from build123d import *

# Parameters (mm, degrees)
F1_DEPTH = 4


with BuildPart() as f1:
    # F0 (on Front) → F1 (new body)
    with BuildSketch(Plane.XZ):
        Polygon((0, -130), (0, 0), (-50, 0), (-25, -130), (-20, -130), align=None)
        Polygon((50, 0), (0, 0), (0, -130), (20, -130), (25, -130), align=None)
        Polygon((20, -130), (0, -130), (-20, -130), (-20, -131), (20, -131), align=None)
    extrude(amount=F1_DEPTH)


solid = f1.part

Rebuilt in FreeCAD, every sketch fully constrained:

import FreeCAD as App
import Part
import Sketcher

doc = App.newDocument("Part")
body = doc.addObject("PartDesign::Body", "Body")

sketch1 = doc.addObject("Sketcher::SketchObject", "Sketch")
body.addObject(sketch1)
sketch1.AttachmentSupport = (doc.XZ_Plane, [""])
sketch1.MapMode = "FlatFace"
sketch1.addGeometry([
    Part.LineSegment(App.Vector(-50, 0, 0), App.Vector(-25, -130, 0)),
    Part.LineSegment(App.Vector(-25, -130, 0), App.Vector(-20, -130, 0)),
    Part.LineSegment(App.Vector(-20, -130, 0), App.Vector(-20, -131, 0)),
    Part.LineSegment(App.Vector(-20, -131, 0), App.Vector(20, -131, 0)),
    Part.LineSegment(App.Vector(20, -131, 0), App.Vector(20, -130, 0)),
    Part.LineSegment(App.Vector(20, -130, 0), App.Vector(25, -130, 0)),
    Part.LineSegment(App.Vector(25, -130, 0), App.Vector(50, 0, 0)),
    Part.LineSegment(App.Vector(50, 0, 0), App.Vector(-50, 0, 0)),
], False)
sketch1.addConstraint([
    Sketcher.Constraint("Coincident", 0, 2, 1, 1),
    Sketcher.Constraint("Coincident", 1, 2, 2, 1),
    Sketcher.Constraint("Coincident", 2, 2, 3, 1),
    Sketcher.Constraint("Coincident", 3, 2, 4, 1),
    Sketcher.Constraint("Coincident", 4, 2, 5, 1),
    Sketcher.Constraint("Coincident", 5, 2, 6, 1),
    Sketcher.Constraint("Coincident", 6, 2, 7, 1),
    Sketcher.Constraint("Coincident", 7, 2, 0, 1),
    Sketcher.Constraint("Horizontal", 1),
    Sketcher.Constraint("Vertical", 2),
    Sketcher.Constraint("Horizontal", 3),
    Sketcher.Constraint("Vertical", 4),
    Sketcher.Constraint("Horizontal", 5),
    Sketcher.Constraint("Horizontal", 7),
    Sketcher.Constraint("Symmetric", 6, 2, 7, 2, -1, 1),
    Sketcher.Constraint("Symmetric", 1, 2, 4, 2, -2),
    Sketcher.Constraint("Equal", 1, 5),
    Sketcher.Constraint("DistanceX", 1, 1, 1, 2, 5.0),
    Sketcher.Constraint("DistanceX", 3, 1, 3, 2, 40.0),
    Sketcher.Constraint("DistanceX", 7, 2, 7, 1, 100.0),
    Sketcher.Constraint("DistanceY", 2, 2, 2, 1, 1.0),
    Sketcher.Constraint("DistanceY", 0, 2, -1, 1, 130.0),
])
pad1 = doc.addObject("PartDesign::Pad", "Pad")
body.addObject(pad1)
pad1.Profile = sketch1
pad1.Length = 4

doc.recompute()
